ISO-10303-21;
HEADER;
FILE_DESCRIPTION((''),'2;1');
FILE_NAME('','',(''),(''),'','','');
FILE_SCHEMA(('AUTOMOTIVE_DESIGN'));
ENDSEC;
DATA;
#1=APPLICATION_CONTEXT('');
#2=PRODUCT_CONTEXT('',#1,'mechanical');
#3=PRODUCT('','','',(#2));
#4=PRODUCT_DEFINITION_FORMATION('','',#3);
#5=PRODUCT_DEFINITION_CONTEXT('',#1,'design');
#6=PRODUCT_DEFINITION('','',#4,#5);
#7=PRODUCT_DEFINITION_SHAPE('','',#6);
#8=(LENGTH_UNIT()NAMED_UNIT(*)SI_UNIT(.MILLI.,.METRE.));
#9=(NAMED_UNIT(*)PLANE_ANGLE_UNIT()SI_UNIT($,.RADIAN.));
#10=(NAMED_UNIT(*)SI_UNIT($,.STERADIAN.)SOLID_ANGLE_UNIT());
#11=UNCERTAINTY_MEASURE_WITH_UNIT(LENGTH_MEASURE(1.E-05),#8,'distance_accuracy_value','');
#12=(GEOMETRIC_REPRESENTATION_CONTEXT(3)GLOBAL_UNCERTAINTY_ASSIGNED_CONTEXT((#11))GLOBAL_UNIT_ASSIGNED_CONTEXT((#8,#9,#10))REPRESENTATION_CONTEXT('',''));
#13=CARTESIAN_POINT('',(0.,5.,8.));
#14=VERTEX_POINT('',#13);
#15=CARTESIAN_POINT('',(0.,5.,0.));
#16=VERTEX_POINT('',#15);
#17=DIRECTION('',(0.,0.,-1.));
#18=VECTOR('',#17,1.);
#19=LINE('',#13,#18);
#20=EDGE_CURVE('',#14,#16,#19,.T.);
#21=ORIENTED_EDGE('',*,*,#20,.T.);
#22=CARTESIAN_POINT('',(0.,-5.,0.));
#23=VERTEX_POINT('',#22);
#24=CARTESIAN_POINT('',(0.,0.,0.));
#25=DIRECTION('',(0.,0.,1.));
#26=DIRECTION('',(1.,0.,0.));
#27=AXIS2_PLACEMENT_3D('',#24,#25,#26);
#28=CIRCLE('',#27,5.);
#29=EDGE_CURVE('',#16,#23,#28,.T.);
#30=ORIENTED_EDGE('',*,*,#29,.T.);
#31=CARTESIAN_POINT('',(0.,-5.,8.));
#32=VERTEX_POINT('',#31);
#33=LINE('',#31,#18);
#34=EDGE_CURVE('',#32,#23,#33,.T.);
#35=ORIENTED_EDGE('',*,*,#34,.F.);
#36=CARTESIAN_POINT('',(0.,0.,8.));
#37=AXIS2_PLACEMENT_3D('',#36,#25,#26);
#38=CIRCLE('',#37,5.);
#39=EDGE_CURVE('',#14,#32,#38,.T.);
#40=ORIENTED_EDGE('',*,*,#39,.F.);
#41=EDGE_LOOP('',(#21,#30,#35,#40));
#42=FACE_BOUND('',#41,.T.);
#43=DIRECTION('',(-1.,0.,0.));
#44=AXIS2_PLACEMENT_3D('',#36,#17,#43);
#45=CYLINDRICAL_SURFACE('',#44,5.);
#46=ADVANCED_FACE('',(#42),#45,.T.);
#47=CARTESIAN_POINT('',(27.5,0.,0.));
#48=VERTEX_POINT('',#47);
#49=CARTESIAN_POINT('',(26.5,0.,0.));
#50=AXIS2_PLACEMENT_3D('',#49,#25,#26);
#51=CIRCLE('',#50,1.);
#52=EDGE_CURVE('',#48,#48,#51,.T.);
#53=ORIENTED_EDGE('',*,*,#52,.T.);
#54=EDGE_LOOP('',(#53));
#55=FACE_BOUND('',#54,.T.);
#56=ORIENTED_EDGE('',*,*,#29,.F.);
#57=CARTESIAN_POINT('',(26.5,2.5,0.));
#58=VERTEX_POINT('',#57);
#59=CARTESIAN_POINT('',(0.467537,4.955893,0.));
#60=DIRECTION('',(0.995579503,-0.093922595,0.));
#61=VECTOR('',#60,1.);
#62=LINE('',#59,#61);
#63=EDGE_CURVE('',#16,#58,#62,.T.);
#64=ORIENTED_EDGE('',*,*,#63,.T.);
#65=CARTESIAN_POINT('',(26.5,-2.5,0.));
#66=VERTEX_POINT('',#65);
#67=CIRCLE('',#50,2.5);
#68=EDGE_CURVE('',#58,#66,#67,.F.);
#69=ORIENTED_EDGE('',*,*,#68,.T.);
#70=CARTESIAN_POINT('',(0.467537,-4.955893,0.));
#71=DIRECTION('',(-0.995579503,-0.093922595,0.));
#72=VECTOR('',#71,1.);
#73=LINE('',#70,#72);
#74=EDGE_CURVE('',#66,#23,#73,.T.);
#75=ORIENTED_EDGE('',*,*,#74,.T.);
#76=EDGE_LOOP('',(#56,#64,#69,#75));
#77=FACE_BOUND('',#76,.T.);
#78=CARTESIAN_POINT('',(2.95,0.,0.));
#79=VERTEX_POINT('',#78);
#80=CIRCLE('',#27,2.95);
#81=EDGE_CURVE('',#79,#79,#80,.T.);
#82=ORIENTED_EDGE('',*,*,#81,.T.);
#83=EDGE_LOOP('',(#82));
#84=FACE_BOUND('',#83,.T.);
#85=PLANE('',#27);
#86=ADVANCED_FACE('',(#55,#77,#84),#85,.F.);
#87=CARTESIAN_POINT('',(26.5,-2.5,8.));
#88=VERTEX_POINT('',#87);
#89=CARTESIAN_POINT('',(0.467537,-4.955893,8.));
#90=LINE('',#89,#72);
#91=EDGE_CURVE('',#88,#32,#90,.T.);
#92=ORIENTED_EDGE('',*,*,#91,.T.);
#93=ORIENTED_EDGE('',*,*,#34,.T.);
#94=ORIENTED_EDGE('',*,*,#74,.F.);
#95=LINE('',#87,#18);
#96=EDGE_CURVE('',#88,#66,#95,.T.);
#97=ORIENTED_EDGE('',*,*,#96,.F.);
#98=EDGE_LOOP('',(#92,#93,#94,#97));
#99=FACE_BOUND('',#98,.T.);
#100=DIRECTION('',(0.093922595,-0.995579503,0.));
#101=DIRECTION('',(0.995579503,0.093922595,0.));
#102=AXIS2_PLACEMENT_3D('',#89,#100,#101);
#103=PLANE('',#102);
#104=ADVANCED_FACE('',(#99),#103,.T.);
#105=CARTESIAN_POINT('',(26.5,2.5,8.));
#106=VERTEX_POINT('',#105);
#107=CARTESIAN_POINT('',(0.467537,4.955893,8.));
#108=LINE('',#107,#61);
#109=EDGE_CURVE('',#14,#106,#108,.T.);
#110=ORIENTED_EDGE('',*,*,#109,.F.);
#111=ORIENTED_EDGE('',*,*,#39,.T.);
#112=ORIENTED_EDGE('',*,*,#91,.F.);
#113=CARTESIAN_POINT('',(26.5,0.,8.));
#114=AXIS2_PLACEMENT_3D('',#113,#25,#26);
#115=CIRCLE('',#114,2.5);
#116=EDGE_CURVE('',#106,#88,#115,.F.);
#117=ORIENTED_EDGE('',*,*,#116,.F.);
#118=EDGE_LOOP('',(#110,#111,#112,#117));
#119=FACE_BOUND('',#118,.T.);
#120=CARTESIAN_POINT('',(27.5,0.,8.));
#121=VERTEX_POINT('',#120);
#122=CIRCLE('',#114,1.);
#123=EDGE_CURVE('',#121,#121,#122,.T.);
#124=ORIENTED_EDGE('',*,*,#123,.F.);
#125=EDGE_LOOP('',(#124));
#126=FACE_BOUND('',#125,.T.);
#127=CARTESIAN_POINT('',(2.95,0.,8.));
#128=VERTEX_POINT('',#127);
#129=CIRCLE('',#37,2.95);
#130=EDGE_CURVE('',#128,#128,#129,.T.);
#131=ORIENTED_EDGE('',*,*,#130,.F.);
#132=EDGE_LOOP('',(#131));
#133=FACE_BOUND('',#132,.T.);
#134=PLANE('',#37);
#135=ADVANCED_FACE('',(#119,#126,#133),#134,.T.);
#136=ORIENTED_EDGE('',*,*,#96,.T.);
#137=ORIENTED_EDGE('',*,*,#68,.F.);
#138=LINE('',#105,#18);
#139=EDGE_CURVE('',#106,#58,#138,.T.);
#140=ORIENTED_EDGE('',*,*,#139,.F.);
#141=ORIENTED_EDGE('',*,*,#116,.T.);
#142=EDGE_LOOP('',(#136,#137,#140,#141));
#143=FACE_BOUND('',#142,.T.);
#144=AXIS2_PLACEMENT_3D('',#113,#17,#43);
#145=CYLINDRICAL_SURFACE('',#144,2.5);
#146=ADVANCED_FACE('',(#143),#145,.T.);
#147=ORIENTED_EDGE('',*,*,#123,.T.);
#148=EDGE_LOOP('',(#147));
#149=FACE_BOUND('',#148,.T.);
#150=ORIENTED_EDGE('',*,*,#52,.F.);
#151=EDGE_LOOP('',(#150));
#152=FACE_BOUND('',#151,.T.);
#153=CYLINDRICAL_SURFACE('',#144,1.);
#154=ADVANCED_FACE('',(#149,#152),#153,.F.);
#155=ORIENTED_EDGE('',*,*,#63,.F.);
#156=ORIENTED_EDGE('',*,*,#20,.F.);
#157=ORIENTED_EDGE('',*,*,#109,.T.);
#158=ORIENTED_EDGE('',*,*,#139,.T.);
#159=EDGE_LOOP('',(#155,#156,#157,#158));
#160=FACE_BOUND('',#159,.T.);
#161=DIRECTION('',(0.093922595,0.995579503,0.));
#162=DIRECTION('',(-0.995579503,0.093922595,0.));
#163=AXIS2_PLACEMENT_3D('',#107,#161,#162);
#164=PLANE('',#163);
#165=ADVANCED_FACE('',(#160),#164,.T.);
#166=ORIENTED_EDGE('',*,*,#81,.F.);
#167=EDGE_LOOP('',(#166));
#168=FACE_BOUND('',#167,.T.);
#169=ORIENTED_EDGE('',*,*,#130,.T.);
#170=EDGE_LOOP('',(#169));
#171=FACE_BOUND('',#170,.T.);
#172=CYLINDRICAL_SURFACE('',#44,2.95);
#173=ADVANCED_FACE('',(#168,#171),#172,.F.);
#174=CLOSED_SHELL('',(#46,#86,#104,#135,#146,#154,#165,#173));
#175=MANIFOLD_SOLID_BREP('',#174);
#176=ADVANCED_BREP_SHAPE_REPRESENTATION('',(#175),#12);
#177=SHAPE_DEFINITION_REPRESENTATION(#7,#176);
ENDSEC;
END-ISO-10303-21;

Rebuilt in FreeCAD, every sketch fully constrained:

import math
import FreeCAD as App
import Part
import Sketcher

V = App.Vector
Q = App.Units.Quantity

doc = App.newDocument("Part")
body = doc.addObject("PartDesign::Body", "Body")

sketch1 = doc.addObject("Sketcher::SketchObject", "Sketch")
body.addObject(sketch1)
sketch1.AttachmentSupport = (doc.XY_Plane, [""])
sketch1.MapMode = "FlatFace"
sketch1.addGeometry([
    Part.LineSegment(V(26.5, 2.5, 0), V(0, 5, 0)),
    Part.ArcOfCircle(Part.Circle(V(0, 0, 0), V(0, 0, 1), 5), math.radians(90), math.radians(270)),
    Part.LineSegment(V(0, -5, 0), V(26.5, -2.5, 0)),
    Part.ArcOfCircle(Part.Circle(V(26.5, 0, 0), V(0, 0, 1), 2.5), math.radians(-90), math.radians(90)),
    Part.Circle(V(26.5, 0, 0), V(0, 0, 1), 1),
    Part.Circle(V(0, 0, 0), V(0, 0, 1), 3),
], False)
sketch1.addConstraint([
    Sketcher.Constraint("Coincident", 0, 2, 1, 1),
    Sketcher.Constraint("Coincident", 1, 2, 2, 1),
    Sketcher.Constraint("Coincident", 2, 2, 3, 1),
    Sketcher.Constraint("Coincident", 3, 2, 0, 1),
    Sketcher.Constraint("Coincident", 1, 3, -1, 1),
    Sketcher.Constraint("Coincident", 5, 3, -1, 1),
    Sketcher.Constraint("Coincident", 4, 3, 3, 3),
    Sketcher.Constraint("Symmetric", 2, 2, 3, 2, -1),
    Sketcher.Constraint("PointOnObject", 0, 2, -2),
    Sketcher.Constraint("PointOnObject", 1, 2, -2),
    Sketcher.Constraint("Vertical", 4, 3, 2, 2),
    Sketcher.Constraint("Diameter", 4, Q("2 mm")),
    Sketcher.Constraint("Radius", 1, Q("5 mm")),
    Sketcher.Constraint("Diameter", 5, Q("5.9 mm")),
    Sketcher.Constraint("Radius", 3, Q("2.5 mm")),
    Sketcher.Constraint("DistanceX", -1, 1, 3, 3, Q("26.5 mm")),
])
pad1 = doc.addObject("PartDesign::Pad", "Pad")
body.addObject(pad1)
pad1.Profile = sketch1
pad1.Length = 8

doc.recompute()
